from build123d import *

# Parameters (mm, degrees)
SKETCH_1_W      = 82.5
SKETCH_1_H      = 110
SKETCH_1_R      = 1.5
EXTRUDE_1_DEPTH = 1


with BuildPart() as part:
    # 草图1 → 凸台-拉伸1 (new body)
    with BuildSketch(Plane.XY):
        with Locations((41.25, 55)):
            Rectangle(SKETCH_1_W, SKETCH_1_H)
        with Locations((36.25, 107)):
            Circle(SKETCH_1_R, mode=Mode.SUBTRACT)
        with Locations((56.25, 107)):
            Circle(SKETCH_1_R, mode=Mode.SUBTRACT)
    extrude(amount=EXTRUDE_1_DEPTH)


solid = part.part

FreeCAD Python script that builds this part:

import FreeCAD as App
import Part
import Sketcher
Q = App.Units.Quantity


def add_polygon(sketch, points):
    """Adds a closed chain of lines whose ends are joined by coincident constraints."""
    first, n = sketch.GeometryCount, len(points)
    for a, b in zip(points, points[1:] + points[:1]):
        sketch.addGeometry(Part.LineSegment(App.Vector(*a, 0), App.Vector(*b, 0)), False)
    for i in range(n):
        sketch.addConstraint(Sketcher.Constraint("Coincident", first + i, 2, first + (i + 1) % n, 1))

doc = App.newDocument("Part")
body = doc.addObject("PartDesign::Body", "Body")

# Sketch on XY plane
sketch1 = body.newObject("Sketcher::SketchObject", "Sketch")
sketch1.AttachmentSupport = (doc.getObject("XY_Plane"), [""])
sketch1.MapMode = "FlatFace"
add_polygon(sketch1, [(0, 110), (0, 0), (82.5, 0), (82.5, 110)])  # lines 0-3
sketch1.addGeometry(Part.Circle(App.Vector(36.2, 107, 0), App.Vector(0, 0, 1), 1.5), False)  # 4
sketch1.addGeometry(Part.Circle(App.Vector(56.2, 107, 0), App.Vector(0, 0, 1), 1.5), False)  # 5
sketch1.addConstraint([
    Sketcher.Constraint("Vertical", 0),
    Sketcher.Constraint("Horizontal", 1),
    Sketcher.Constraint("Vertical", 2),
    Sketcher.Constraint("Horizontal", 3),
    Sketcher.Constraint("Coincident", 0, 2, -1, 1),
    Sketcher.Constraint("Equal", 4, 5),
    Sketcher.Constraint("Horizontal", 4, 3, 5, 3),
    Sketcher.Constraint("Diameter", 4, Q("3 mm")),
    Sketcher.Constraint("DistanceY", 0, 2, 0, 1, Q("110 mm")),
    Sketcher.Constraint("DistanceX", 1, 1, 1, 2, Q("82.5 mm")),
    Sketcher.Constraint("DistanceY", -1, 1, 4, 3, Q("107 mm")),
    Sketcher.Constraint("DistanceX", 4, 3, 5, 3, Q("20 mm")),
    Sketcher.Constraint("DistanceX", -1, 1, 4, 3, Q("36.25 mm")),
])
pad1 = body.newObject("PartDesign::Pad", "Pad")
pad1.Profile = sketch1
pad1.Length = 1

doc.recompute()
